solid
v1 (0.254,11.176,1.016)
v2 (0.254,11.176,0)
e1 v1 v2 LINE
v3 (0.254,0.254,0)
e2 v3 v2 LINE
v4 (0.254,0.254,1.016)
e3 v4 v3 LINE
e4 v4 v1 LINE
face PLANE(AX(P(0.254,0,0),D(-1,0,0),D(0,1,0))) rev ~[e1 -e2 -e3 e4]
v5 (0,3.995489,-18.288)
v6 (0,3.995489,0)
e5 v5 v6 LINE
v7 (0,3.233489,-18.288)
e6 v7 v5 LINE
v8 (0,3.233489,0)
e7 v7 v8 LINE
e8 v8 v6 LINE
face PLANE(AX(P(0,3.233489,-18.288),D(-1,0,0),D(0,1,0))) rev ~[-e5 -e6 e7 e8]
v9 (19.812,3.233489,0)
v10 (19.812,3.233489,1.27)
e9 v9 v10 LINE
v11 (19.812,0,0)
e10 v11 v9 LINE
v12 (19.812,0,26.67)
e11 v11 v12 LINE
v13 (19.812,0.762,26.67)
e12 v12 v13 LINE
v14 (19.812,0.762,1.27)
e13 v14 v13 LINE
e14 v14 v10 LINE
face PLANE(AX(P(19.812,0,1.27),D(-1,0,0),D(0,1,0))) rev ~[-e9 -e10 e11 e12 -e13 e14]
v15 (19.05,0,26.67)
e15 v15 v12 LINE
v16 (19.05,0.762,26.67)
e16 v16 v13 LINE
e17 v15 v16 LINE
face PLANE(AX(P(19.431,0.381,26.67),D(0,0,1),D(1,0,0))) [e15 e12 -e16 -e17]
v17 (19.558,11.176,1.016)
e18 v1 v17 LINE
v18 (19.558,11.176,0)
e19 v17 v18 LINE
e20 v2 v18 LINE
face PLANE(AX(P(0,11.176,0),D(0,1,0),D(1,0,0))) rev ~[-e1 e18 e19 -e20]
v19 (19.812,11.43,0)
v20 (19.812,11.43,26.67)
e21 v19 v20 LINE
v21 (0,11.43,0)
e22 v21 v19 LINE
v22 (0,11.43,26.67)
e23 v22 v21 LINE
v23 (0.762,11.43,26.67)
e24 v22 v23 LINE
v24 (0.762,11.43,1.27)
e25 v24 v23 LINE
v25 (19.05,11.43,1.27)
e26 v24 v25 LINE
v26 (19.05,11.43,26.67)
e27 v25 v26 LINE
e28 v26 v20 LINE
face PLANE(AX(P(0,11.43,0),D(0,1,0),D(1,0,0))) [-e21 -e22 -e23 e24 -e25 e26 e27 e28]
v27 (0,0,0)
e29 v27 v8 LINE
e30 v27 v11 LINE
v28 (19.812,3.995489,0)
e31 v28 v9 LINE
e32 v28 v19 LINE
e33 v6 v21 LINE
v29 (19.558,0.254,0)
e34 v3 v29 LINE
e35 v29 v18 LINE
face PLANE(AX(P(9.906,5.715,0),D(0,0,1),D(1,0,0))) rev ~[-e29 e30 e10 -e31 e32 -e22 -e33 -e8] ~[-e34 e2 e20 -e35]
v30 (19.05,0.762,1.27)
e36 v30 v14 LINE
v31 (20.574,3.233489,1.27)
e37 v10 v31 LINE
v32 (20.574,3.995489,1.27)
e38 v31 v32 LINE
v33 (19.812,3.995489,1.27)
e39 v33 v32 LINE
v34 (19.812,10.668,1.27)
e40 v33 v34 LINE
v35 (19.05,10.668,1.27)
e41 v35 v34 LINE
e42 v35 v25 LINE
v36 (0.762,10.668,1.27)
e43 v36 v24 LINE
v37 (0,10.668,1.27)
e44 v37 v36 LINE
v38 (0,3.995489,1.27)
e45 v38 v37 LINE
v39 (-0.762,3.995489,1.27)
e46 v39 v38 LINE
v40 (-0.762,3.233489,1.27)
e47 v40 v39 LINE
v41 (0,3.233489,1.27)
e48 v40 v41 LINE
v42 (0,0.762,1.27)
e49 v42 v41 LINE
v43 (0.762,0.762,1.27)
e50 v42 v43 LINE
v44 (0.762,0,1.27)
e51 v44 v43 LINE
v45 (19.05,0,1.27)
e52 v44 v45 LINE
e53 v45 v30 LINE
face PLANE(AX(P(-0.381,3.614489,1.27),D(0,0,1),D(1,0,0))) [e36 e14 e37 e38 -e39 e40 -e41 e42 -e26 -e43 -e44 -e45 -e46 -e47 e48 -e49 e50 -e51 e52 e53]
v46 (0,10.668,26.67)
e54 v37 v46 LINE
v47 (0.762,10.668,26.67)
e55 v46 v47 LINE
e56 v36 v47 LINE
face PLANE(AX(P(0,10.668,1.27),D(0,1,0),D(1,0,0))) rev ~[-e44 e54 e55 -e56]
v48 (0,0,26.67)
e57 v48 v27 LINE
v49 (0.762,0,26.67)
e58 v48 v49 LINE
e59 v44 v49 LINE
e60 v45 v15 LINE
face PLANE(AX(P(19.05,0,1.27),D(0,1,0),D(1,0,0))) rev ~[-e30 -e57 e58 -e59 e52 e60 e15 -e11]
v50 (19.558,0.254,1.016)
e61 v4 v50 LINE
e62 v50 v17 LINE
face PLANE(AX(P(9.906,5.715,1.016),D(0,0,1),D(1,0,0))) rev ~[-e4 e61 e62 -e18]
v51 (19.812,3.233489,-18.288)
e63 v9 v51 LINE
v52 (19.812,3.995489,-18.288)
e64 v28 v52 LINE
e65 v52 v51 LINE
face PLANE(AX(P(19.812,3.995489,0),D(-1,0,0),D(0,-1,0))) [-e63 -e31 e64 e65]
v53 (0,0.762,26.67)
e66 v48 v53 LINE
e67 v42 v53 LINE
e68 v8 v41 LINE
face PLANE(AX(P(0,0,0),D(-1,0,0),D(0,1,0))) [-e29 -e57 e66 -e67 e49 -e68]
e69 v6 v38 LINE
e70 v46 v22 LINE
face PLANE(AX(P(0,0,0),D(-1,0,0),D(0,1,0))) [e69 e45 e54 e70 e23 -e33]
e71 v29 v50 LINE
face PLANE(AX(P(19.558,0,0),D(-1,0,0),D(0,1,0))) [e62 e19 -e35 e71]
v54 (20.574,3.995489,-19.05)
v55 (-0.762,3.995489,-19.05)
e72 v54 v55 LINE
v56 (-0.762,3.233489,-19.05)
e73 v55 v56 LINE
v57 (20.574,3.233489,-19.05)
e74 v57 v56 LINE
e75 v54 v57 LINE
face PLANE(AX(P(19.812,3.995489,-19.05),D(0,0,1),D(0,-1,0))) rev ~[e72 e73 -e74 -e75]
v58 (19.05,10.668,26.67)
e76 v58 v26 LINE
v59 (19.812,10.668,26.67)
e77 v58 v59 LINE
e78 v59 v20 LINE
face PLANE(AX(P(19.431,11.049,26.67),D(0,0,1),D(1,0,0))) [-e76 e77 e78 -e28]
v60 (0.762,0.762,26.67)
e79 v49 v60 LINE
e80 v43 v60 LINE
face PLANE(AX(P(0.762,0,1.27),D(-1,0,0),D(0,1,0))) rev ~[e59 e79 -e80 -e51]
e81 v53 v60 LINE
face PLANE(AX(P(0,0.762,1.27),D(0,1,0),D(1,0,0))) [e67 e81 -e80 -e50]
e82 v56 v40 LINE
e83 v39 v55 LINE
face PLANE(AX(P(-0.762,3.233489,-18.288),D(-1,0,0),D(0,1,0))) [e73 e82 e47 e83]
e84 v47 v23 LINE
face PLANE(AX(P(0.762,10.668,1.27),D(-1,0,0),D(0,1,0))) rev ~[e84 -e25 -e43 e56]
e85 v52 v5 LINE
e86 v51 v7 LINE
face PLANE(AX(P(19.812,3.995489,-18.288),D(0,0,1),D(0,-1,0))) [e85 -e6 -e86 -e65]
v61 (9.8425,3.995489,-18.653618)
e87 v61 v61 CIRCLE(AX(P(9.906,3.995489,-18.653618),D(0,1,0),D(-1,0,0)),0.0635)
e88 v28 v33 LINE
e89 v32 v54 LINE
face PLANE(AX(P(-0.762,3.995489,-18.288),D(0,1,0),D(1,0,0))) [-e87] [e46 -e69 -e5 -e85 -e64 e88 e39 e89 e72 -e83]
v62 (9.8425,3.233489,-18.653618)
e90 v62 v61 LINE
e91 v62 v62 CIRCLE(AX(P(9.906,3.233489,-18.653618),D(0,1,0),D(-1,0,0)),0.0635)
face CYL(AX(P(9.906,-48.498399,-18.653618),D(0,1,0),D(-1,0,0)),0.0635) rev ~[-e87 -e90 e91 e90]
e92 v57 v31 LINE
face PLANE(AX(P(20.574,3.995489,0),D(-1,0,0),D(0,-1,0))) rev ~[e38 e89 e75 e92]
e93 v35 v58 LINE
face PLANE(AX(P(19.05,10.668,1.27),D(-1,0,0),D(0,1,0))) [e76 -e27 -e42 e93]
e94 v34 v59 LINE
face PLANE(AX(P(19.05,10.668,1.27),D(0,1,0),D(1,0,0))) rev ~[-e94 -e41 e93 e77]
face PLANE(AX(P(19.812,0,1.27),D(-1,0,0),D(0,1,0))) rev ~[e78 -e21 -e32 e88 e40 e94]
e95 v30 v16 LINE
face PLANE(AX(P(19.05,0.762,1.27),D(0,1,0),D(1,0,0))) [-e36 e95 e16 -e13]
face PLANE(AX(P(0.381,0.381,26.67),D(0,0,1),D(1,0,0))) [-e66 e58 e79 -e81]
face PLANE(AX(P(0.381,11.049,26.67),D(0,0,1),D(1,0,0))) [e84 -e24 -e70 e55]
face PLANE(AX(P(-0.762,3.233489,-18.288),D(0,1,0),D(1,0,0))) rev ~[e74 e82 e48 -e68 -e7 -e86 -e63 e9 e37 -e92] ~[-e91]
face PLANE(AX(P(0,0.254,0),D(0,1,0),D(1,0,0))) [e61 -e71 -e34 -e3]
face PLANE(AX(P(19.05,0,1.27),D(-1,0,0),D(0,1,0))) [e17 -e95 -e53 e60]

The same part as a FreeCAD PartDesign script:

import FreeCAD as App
import Part
import Sketcher

V = App.Vector
Q = App.Units.Quantity


def faces_at(feature, points):
    """Names of the faces that lie closest to the given points."""
    faces = feature.Shape.Faces
    near = lambda p: min(range(len(faces)), key=lambda i: faces[i].distToShape(Part.Vertex(*p))[0])
    return sorted({f"Face{near(p) + 1}" for p in points})


def add_polygon(sketch, points):
    """Adds a closed chain of lines whose ends are joined by coincident constraints."""
    first, n = sketch.GeometryCount, len(points)
    for a, b in zip(points, points[1:] + points[:1]):
        sketch.addGeometry(Part.LineSegment(App.Vector(*a, 0), App.Vector(*b, 0)), False)
    for i in range(n):
        sketch.addConstraint(Sketcher.Constraint("Coincident", first + i, 2, first + (i + 1) % n, 1))

doc = App.newDocument("Part")
body = doc.addObject("PartDesign::Body", "Body")

# Sketch on XY plane
sketch1 = body.newObject("Sketcher::SketchObject", "Sketch")
sketch1.AttachmentSupport = (doc.getObject("XY_Plane"), [""])
sketch1.MapMode = "FlatFace"
add_polygon(sketch1, [(0, 11), (0, 0), (20, 0), (20, 11)])  # lines 0-3
sketch1.addConstraint([
    Sketcher.Constraint("Vertical", 0),
    Sketcher.Constraint("Horizontal", 1),
    Sketcher.Constraint("Vertical", 2),
    Sketcher.Constraint("Horizontal", 3),
    Sketcher.Constraint("Coincident", 0, 2, -1, 1),
    Sketcher.Constraint("DistanceX", 1, 1, 1, 2, Q("0.78 in")),
    Sketcher.Constraint("DistanceY", 0, 2, 0, 1, Q("0.45 in")),
])
pad1 = body.newObject("PartDesign::Pad", "Pad")
pad1.Profile = sketch1
pad1.Length = Q("0.05 in")
doc.recompute()

thickness = body.newObject("PartDesign::Thickness", "Thickness")
thickness.Base = (pad1, faces_at(pad1, [(9.906, 5.715, 0)]))
thickness.Value = Q("0.01 in")
thickness.Reversed = True
thickness.Join = "Arc"

# Sketch on XY plane
sketch2 = body.newObject("Sketcher::SketchObject", "Sketch001")
sketch2.AttachmentSupport = (doc.getObject("XY_Plane"), [""])
sketch2.MapMode = "FlatFace"
sketch2.AttachmentOffset = App.Placement(V(0, 0, 0.05 * 25.4), App.Rotation())
add_polygon(sketch2, [(19.1, 0.8), (19.1, 0), (19.8, 0), (19.8, 0.8)])  # lines 0-3
add_polygon(sketch2, [(19.1, 11.4), (19.1, 10.7), (19.8, 10.7), (19.8, 11.4)])  # lines 4-7
add_polygon(sketch2, [(0, 11.4), (0, 10.7), (0.8, 10.7), (0.8, 11.4)])  # lines 8-11
add_polygon(sketch2, [(0, 0.8), (0, 0), (0.8, 0), (0.8, 0.8)])  # lines 12-15
sketch2.addConstraint([
    Sketcher.Constraint("Vertical", 0),
    Sketcher.Constraint("Horizontal", 1),
    Sketcher.Constraint("Vertical", 2),
    Sketcher.Constraint("Horizontal", 3),
    Sketcher.Constraint("Vertical", 4),
    Sketcher.Constraint("Horizontal", 5),
    Sketcher.Constraint("Vertical", 6),
    Sketcher.Constraint("Horizontal", 7),
    Sketcher.Constraint("Vertical", 8),
    Sketcher.Constraint("Horizontal", 9),
    Sketcher.Constraint("Vertical", 10),
    Sketcher.Constraint("Horizontal", 11),
    Sketcher.Constraint("Vertical", 12),
    Sketcher.Constraint("Horizontal", 13),
    Sketcher.Constraint("Vertical", 14),
    Sketcher.Constraint("Horizontal", 15),
    Sketcher.Constraint("Coincident", 12, 2, -1, 1),
    Sketcher.Constraint("PointOnObject", 0, 2, -1),
    Sketcher.Constraint("PointOnObject", 8, 2, -2),
    Sketcher.Constraint("Horizontal", 5, 2, 8, 2),
    Sketcher.Constraint("Horizontal", 7, 2, 10, 2),
    Sketcher.Constraint("Horizontal", 3, 2, 14, 2),
    Sketcher.Constraint("Vertical", 3, 2, 4, 2),
    Sketcher.Constraint("Vertical", 2, 2, 5, 2),
    Sketcher.Constraint("Vertical", 10, 2, 13, 2),
    Sketcher.Constraint("Equal", 7, 9),
    Sketcher.Constraint("Equal", 15, 0),
    Sketcher.Constraint("Equal", 2, 4),
    Sketcher.Constraint("DistanceX", 1, 1, 1, 2, Q("0.03 in")),
    Sketcher.Constraint("DistanceX", -1, 1, 0, 2, Q("0.75 in")),
    Sketcher.Constraint("DistanceY", -1, 1, 4, 2, Q("0.42 in")),
])
pad2 = body.newObject("PartDesign::Pad", "Pad001")
pad2.Profile = sketch2
pad2.Length = Q("1 in")

# Sketch on YZ plane
sketch3 = body.newObject("Sketcher::SketchObject", "Sketch002")
sketch3.AttachmentSupport = (doc.getObject("YZ_Plane"), [""])
sketch3.MapMode = "FlatFace"
sketch3.AttachmentOffset = App.Placement(V(0, 0, 0.78 * 25.4), App.Rotation())
add_polygon(sketch3, [(3.2, 1.3), (3.2, 0), (4, 0), (4, 1.3)])  # lines 0-3
sketch3.addConstraint([
    Sketcher.Constraint("Vertical", 0),
    Sketcher.Constraint("Horizontal", 1),
    Sketcher.Constraint("Vertical", 2),
    Sketcher.Constraint("Horizontal", 3),
    Sketcher.Constraint("PointOnObject", 0, 2, -1),
    Sketcher.Constraint("DistanceX", 1, 1, 1, 2, Q("0.03 in")),
    Sketcher.Constraint("DistanceY", 0, 2, 0, 1, Q("0.05 in")),
    Sketcher.Constraint("DistanceX", -1, 1, 0, 2, Q("3.233489 mm")),
])
pad3 = body.newObject("PartDesign::Pad", "Pad002")
pad3.Profile = sketch3
pad3.Length = Q("0.03 in")

# Sketch on XY plane
sketch4 = body.newObject("Sketcher::SketchObject", "Sketch003")
sketch4.AttachmentSupport = (doc.getObject("XY_Plane"), [""])
sketch4.MapMode = "FlatFace"
add_polygon(sketch4, [(19.8, 3.2), (19.8, 4), (20.6, 4), (20.6, 3.2)])  # lines 0-3
sketch4.addConstraint([
    Sketcher.Constraint("Vertical", 0),
    Sketcher.Constraint("Horizontal", 1),
    Sketcher.Constraint("Vertical", 2),
    Sketcher.Constraint("Horizontal", 3),
    Sketcher.Constraint("Equal", 3, 0),
    Sketcher.Constraint("DistanceX", 1, 1, 1, 2, Q("0.03 in")),
    Sketcher.Constraint("DistanceX", -1, 1, 0, 2, Q("0.78 in")),
    Sketcher.Constraint("DistanceY", -1, 1, 0, 2, Q("3.995489 mm")),
])
pad4 = body.newObject("PartDesign::Pad", "Pad003")
pad4.Profile = sketch4
pad4.Length = Q("0.75 in")
pad4.Reversed = True

# Sketch on YZ plane
sketch5 = body.newObject("Sketcher::SketchObject", "Sketch004")
sketch5.AttachmentSupport = (doc.getObject("YZ_Plane"), [""])
sketch5.MapMode = "FlatFace"
sketch5.AttachmentOffset = App.Placement(V(0, 0, 0.78 * 25.4), App.Rotation())
add_polygon(sketch5, [(4, -18.3), (4, -19.1), (3.2, -19.1), (3.2, -18.3)])  # lines 0-3
sketch5.addConstraint([
    Sketcher.Constraint("Vertical", 0),
    Sketcher.Constraint("Horizontal", 1),
    Sketcher.Constraint("Vertical", 2),
    Sketcher.Constraint("Horizontal", 3),
    Sketcher.Constraint("Equal", 3, 0),
    Sketcher.Constraint("DistanceX", 1, 2, 1, 1, Q("0.03 in")),
    Sketcher.Constraint("DistanceY", 0, 2, -1, 1, Q("0.75 in")),
    Sketcher.Constraint("DistanceX", -1, 1, 0, 2, Q("3.995489 mm")),
])
pad5 = body.newObject("PartDesign::Pad", "Pad004")
pad5.Profile = sketch5
pad5.Length = Q("0.81 in")
pad5.Reversed = True

# Sketch on XY plane
sketch6 = body.newObject("Sketcher::SketchObject", "Sketch005")
sketch6.AttachmentSupport = (doc.getObject("XY_Plane"), [""])
sketch6.MapMode = "FlatFace"
sketch6.AttachmentOffset = App.Placement(V(0, 0, -0.72 * 25.4), App.Rotation())
add_polygon(sketch6, [(-0.8, 4), (-0.8, 3.2), (0, 3.2), (0, 4)])  # lines 0-3
sketch6.addConstraint([
    Sketcher.Constraint("Vertical", 0),
    Sketcher.Constraint("Horizontal", 1),
    Sketcher.Constraint("Vertical", 2),
    Sketcher.Constraint("Horizontal", 3),
    Sketcher.Constraint("PointOnObject", 1, 2, -2),
    Sketcher.Constraint("Equal", 3, 0),
    Sketcher.Constraint("DistanceX", 1, 1, 1, 2, Q("0.03 in")),
    Sketcher.Constraint("DistanceY", -1, 1, 0, 2, Q("3.233489 mm")),
])
pad6 = body.newObject("PartDesign::Pad", "Pad005")
pad6.Profile = sketch6
pad6.Length = Q("0.77 in")

# Sketch on XZ plane
sketch7 = body.newObject("Sketcher::SketchObject", "Sketch006")
sketch7.AttachmentSupport = (doc.getObject("XZ_Plane"), [""])
sketch7.MapMode = "FlatFace"
sketch7.AttachmentOffset = App.Placement(V(0, 0, -3.233489), App.Rotation())
sketch7.addGeometry(Part.Circle(V(9.91, -18.65, 0), V(0, 0, 1), 0.06), False)
sketch7.addConstraint([
    Sketcher.Constraint("Diameter", 0, Q("0.005 in")),
    Sketcher.Constraint("DistanceX", -1, 1, 0, 3, Q("0.39 in")),
    Sketcher.Constraint("DistanceY", 0, 3, -1, 1, Q("18.653618 mm")),
])
doc.recompute()
hole = body.newObject("PartDesign::Hole", "Hole")
hole.Profile = sketch7
hole.ThreadType = "None"
hole.Diameter = Q("0.005 in")
hole.DepthType = "ThroughAll"

doc.recompute()
